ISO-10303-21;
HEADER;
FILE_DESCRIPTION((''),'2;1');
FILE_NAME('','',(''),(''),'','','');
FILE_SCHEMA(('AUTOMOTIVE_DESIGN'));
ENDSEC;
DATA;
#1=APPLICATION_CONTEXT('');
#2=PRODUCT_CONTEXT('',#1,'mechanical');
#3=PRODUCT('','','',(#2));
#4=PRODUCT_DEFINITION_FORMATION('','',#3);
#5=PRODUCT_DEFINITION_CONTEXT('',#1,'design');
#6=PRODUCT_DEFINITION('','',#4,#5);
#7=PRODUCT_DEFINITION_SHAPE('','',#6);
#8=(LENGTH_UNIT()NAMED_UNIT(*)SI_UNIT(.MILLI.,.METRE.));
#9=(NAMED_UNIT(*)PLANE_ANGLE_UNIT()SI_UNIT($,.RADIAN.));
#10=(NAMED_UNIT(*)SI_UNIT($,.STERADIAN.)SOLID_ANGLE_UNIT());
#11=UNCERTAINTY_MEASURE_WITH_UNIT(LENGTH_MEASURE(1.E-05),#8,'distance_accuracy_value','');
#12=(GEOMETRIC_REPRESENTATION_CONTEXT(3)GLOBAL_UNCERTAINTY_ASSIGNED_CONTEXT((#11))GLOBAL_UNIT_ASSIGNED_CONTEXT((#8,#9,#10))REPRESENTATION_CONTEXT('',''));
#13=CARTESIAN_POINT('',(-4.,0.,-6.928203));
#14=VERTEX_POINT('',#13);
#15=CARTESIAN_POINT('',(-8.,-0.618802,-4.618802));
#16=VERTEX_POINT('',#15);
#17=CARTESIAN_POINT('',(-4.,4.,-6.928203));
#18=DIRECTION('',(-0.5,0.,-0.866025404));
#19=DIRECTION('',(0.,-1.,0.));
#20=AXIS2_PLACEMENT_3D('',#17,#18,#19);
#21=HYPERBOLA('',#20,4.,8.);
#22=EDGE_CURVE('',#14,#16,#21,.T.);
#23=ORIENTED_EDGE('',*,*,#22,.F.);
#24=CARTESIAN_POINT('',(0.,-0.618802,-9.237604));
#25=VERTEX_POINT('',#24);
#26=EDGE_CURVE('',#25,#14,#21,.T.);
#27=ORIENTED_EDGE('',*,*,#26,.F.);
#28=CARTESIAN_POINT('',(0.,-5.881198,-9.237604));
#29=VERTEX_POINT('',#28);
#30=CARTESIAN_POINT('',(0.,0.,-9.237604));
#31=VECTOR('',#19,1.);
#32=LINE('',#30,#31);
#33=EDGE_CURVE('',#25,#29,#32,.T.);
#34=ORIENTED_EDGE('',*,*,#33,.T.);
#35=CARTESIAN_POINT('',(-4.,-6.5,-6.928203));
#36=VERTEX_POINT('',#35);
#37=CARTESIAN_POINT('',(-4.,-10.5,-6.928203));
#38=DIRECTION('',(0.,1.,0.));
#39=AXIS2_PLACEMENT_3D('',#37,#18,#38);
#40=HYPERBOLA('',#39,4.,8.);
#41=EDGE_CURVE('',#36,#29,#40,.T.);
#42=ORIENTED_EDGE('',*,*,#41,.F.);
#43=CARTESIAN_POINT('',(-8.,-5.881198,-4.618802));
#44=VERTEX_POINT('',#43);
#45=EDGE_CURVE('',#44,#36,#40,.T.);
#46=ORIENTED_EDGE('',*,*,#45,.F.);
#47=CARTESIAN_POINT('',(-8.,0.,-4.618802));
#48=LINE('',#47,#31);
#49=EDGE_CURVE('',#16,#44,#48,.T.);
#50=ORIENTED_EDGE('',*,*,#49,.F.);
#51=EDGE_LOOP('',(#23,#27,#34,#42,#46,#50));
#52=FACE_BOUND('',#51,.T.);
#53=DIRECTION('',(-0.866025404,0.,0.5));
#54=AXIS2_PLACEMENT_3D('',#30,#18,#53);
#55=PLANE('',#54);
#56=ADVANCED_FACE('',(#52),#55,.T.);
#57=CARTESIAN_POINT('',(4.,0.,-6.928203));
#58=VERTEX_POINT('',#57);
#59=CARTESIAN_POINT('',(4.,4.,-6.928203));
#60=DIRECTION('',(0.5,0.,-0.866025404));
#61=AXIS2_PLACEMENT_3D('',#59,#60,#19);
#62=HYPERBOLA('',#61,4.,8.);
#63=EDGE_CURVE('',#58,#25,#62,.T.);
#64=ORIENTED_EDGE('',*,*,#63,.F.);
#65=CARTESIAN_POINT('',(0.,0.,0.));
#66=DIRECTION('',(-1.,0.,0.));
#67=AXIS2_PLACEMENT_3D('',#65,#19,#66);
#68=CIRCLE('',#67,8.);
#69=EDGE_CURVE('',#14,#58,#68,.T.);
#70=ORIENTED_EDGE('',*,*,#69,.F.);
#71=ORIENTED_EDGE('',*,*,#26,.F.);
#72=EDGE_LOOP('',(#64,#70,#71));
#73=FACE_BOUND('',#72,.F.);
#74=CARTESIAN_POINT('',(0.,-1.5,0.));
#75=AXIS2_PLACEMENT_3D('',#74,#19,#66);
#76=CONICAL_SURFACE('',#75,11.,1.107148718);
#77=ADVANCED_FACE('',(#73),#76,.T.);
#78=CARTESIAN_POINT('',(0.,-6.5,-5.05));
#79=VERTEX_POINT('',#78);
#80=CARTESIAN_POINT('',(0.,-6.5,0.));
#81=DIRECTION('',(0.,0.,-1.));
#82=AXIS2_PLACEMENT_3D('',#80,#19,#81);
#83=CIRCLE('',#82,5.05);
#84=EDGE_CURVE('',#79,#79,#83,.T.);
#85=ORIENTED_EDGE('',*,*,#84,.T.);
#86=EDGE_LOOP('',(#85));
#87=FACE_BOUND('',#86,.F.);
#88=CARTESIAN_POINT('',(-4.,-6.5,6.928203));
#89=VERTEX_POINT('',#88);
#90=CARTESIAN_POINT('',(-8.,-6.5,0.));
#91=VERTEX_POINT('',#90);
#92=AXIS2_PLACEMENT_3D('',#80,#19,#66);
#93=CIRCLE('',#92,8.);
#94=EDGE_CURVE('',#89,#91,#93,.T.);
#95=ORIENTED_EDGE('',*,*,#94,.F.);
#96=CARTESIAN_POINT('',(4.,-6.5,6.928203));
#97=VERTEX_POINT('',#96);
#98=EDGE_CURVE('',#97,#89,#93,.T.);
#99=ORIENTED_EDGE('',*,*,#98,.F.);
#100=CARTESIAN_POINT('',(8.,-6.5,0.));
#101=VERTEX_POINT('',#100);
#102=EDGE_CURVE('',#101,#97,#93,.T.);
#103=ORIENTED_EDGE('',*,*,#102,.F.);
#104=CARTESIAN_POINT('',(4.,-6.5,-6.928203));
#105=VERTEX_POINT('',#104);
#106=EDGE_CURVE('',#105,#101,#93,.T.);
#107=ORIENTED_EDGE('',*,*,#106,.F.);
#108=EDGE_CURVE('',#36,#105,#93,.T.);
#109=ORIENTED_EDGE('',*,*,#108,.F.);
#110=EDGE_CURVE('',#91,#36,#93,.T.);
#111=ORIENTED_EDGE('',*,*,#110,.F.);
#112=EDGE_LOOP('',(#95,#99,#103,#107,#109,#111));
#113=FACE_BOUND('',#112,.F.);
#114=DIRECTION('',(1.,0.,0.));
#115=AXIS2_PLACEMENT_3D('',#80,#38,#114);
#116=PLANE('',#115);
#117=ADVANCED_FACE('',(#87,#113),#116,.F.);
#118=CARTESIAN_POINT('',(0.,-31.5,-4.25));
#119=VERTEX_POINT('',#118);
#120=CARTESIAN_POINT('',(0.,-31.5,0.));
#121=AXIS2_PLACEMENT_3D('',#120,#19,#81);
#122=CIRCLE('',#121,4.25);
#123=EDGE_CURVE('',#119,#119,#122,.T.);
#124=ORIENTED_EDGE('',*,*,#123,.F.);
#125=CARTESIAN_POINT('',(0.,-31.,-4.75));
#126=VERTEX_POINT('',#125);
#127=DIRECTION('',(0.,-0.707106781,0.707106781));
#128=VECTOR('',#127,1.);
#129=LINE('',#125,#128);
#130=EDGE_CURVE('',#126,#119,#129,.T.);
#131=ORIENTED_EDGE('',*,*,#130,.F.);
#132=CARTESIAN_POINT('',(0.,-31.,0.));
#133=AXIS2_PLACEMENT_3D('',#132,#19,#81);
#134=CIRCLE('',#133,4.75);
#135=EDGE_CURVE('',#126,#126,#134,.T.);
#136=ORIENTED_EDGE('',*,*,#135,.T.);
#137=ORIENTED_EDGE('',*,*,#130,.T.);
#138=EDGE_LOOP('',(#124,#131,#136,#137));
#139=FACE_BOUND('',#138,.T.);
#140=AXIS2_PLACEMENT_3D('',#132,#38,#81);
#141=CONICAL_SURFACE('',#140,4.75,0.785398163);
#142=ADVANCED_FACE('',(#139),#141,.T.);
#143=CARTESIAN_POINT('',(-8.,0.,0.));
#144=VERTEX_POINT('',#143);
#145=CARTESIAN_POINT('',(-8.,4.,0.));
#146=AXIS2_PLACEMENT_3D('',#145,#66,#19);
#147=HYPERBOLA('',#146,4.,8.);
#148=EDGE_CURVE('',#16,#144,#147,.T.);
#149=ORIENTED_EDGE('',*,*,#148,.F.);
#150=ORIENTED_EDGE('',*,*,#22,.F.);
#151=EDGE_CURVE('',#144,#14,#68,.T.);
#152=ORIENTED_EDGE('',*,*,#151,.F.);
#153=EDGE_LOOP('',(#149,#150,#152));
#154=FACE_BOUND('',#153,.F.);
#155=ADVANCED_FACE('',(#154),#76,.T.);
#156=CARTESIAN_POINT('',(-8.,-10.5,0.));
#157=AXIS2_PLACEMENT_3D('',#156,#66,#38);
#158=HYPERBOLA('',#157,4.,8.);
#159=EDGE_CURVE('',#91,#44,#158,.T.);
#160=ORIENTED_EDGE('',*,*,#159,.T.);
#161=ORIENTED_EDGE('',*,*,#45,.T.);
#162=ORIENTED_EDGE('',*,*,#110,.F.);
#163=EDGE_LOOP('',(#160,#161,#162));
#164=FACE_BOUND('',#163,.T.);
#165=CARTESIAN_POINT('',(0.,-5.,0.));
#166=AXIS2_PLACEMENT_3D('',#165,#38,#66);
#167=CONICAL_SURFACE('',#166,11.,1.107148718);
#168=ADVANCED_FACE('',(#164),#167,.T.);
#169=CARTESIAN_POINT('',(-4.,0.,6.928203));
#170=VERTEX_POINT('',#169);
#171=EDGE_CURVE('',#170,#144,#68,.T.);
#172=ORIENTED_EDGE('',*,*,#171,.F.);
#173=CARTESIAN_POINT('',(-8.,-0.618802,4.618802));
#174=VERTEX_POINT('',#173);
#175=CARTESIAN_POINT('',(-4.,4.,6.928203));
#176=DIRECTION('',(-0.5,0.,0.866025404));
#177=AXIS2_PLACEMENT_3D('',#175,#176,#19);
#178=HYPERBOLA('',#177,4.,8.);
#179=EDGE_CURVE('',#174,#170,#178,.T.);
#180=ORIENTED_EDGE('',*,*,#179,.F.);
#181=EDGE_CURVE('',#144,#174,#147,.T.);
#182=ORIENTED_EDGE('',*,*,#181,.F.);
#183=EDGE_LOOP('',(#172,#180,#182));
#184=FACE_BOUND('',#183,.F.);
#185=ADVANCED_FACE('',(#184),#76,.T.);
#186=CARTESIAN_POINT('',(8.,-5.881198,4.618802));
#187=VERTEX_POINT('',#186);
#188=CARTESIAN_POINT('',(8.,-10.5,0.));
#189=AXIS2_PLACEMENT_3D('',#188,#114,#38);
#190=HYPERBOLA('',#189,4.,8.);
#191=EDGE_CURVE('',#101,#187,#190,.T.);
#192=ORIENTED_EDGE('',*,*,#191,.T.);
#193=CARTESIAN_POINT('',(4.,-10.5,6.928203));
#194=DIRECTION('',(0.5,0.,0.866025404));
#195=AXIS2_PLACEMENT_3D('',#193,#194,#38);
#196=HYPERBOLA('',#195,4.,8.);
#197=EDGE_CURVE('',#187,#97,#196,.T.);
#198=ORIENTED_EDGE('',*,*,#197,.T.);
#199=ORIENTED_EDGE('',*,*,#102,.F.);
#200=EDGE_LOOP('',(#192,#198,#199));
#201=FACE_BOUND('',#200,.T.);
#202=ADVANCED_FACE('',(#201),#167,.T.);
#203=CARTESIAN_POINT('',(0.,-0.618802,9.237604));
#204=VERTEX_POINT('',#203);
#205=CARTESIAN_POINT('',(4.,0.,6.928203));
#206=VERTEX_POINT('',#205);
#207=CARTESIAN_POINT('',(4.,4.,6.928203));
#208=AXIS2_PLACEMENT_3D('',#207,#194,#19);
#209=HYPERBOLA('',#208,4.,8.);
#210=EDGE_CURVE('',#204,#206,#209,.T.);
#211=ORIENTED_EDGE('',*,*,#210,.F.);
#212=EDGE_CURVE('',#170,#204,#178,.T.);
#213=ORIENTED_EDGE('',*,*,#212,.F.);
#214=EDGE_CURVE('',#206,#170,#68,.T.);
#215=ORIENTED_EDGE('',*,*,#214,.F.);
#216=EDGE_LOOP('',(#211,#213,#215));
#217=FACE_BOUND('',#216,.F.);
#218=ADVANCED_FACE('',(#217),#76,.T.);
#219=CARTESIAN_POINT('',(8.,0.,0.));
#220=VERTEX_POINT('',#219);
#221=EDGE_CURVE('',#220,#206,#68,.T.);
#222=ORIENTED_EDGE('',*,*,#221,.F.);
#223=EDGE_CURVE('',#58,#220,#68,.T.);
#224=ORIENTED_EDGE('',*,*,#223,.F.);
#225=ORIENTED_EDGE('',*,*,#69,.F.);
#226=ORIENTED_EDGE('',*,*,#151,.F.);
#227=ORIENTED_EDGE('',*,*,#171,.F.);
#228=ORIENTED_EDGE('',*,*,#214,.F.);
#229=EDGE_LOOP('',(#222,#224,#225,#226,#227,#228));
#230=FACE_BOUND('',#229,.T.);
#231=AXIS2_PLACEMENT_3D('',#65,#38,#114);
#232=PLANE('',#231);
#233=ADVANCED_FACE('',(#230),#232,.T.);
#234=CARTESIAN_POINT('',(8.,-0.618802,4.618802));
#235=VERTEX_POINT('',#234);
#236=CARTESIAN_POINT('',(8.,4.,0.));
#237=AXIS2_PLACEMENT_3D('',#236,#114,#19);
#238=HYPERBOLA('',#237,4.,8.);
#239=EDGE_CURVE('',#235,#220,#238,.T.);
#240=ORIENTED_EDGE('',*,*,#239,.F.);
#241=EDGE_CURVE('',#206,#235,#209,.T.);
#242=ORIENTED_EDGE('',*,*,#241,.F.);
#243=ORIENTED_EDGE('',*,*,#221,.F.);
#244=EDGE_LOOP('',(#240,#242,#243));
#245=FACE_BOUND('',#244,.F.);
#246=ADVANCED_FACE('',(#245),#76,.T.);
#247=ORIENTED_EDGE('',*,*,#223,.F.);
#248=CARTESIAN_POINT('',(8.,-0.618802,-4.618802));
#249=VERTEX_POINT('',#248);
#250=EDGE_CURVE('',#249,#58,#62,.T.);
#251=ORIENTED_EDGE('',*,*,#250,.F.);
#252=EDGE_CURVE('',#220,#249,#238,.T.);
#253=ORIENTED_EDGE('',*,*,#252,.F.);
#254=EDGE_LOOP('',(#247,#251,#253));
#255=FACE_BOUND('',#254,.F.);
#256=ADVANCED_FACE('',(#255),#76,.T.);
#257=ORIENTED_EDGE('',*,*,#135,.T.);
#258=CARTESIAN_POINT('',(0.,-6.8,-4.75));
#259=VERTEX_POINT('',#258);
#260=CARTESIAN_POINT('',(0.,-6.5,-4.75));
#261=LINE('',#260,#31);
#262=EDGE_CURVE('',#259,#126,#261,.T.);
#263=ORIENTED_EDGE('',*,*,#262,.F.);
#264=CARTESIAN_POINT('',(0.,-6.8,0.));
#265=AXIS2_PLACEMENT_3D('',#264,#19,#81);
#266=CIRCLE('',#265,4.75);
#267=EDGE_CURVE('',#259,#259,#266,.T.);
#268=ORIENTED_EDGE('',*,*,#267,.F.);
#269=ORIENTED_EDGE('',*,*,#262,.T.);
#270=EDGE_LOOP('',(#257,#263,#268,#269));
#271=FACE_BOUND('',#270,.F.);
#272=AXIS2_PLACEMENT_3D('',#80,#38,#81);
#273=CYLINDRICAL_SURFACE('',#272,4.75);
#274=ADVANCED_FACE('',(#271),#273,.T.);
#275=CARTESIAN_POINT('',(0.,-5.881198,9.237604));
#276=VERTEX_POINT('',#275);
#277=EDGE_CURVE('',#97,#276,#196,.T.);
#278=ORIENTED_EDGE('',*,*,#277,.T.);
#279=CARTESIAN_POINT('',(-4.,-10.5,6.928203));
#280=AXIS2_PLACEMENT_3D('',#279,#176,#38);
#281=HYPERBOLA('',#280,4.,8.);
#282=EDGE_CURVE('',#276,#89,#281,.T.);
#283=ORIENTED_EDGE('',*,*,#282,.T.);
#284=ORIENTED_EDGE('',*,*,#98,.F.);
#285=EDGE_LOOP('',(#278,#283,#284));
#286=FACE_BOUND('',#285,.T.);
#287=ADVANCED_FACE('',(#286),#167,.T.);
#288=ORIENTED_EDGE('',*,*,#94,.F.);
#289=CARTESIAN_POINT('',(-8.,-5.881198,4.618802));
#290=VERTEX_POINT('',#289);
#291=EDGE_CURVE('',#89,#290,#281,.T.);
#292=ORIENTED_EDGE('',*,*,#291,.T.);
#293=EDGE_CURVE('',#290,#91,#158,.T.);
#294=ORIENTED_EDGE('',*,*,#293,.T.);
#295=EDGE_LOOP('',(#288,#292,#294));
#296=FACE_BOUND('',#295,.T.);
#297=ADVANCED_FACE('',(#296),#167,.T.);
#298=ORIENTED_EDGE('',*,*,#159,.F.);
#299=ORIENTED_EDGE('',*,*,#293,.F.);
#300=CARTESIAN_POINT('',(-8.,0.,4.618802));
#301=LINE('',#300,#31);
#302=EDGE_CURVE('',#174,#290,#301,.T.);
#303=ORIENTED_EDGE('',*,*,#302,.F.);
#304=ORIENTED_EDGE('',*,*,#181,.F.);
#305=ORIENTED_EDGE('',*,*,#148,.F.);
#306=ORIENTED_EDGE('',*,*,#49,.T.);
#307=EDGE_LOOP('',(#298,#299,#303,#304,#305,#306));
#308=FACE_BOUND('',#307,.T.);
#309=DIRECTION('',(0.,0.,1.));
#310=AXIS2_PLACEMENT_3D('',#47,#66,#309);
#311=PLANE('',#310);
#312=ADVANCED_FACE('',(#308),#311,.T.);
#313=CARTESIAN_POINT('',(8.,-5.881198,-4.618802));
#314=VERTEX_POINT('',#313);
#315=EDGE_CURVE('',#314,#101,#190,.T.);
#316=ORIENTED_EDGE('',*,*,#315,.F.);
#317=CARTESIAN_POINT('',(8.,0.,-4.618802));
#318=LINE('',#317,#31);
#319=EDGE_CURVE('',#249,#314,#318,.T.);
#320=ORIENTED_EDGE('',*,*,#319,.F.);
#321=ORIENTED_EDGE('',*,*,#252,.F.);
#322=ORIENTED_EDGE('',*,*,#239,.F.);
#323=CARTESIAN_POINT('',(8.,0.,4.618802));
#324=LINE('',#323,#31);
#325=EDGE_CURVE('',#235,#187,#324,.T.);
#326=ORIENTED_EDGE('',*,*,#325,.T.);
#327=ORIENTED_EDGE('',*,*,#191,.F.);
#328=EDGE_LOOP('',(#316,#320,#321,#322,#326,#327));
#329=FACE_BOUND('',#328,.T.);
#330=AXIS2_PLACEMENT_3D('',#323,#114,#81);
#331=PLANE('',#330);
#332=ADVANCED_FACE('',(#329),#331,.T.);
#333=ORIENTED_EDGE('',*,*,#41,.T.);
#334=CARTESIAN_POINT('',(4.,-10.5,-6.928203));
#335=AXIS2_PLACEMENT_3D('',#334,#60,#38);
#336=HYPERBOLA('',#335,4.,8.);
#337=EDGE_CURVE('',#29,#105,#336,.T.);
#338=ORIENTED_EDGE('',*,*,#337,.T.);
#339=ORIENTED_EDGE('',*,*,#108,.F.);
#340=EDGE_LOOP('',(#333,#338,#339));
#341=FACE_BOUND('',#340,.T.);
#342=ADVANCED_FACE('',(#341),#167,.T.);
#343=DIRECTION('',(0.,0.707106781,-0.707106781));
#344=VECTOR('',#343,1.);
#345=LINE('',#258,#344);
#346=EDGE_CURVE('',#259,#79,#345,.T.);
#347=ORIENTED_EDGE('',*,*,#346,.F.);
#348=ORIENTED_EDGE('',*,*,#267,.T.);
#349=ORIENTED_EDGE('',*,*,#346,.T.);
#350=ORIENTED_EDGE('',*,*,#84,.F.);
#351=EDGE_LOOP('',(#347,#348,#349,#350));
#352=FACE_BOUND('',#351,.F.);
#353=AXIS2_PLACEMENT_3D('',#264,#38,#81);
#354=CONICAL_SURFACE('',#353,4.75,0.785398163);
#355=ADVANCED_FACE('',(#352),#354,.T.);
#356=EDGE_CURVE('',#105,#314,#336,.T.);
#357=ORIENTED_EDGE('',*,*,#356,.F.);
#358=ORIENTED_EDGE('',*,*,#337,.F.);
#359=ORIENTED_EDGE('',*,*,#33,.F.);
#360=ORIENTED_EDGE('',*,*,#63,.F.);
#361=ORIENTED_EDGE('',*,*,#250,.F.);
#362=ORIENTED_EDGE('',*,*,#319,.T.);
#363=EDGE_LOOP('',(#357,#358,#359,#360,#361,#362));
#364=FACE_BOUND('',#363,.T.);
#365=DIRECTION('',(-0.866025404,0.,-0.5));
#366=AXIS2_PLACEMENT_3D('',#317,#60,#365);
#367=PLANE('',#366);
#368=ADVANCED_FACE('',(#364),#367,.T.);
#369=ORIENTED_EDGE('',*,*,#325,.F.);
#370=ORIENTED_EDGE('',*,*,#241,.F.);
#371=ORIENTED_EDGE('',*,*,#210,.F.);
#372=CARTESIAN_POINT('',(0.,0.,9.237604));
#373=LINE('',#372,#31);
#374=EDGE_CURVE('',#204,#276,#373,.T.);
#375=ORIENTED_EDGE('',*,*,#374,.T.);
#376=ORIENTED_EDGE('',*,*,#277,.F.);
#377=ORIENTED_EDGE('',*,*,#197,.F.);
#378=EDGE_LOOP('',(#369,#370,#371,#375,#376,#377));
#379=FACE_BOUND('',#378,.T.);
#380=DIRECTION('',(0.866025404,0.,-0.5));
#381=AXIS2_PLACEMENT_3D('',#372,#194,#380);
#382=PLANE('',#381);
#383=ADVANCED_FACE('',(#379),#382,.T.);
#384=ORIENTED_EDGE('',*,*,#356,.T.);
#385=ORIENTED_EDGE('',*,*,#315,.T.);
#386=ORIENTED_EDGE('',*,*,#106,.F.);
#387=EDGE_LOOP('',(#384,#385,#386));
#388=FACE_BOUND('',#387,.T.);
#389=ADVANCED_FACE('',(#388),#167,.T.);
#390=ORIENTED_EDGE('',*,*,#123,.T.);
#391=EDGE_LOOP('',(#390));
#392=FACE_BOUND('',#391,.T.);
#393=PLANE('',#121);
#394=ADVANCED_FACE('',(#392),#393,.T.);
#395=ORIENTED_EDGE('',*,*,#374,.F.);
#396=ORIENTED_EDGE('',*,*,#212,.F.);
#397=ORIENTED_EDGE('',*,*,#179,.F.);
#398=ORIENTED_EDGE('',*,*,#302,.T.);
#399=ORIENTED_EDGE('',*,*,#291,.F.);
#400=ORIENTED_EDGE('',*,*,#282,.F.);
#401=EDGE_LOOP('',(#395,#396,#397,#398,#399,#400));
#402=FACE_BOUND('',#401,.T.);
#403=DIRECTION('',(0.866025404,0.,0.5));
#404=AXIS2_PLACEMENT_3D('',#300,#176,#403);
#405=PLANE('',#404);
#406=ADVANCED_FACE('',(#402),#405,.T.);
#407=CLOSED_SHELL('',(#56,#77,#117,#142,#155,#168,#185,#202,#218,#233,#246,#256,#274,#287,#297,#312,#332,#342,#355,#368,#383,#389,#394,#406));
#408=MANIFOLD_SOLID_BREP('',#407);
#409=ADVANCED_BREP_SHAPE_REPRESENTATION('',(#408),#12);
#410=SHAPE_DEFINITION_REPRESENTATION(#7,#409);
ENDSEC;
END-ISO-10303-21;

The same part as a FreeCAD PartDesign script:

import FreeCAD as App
import Part
import Sketcher
Q = App.Units.Quantity


def edges_at(feature, points):
    """Names of the edges that pass closest to the given points."""
    edges = feature.Shape.Edges
    near = lambda p: min(range(len(edges)), key=lambda i: edges[i].distToShape(Part.Vertex(*p))[0])
    return sorted({f"Edge{near(p) + 1}" for p in points})

doc = App.newDocument("Part")
params = doc.addObject("Spreadsheet::Sheet", "Params")
for row, (alias, value) in enumerate([
    ("pad1_length", "6.5 mm"),
    ("sketch2_width", "3 mm"),
    ("sketch2_height", "1 mm"),
    ("sketch2_height2", "2.5 mm"),
    ("groove_angle", "360 deg"),
    ("sketch3_diameter", "9.5 mm"),
    ("pad2_length", "25 mm"),
    ("chamfer_size", "0.5 mm"),
    ("chamfer2_size", "0.3 mm"),
], start=1):
    params.set(f"A{row}", alias)
    params.set(f"B{row}", "=" + value)
    params.setAlias(f"B{row}", alias)

body = doc.addObject("PartDesign::Body", "Body")

# Sketch on XZ plane
sketch1 = body.newObject("Sketcher::SketchObject", "Sketch")
sketch1.AttachmentSupport = (doc.getObject("XZ_Plane"), [""])
sketch1.MapMode = "FlatFace"
sketch1.addGeometry([
    Part.LineSegment(App.Vector(0, -9.237604, 0), App.Vector(-8, -4.618802, 0)),  # 0
    Part.LineSegment(App.Vector(-8, -4.618802, 0), App.Vector(-8, 4.618802, 0)),  # 1
    Part.LineSegment(App.Vector(-8, 4.618802, 0), App.Vector(0, 9.237604, 0)),  # 2
    Part.LineSegment(App.Vector(0, 9.237604, 0), App.Vector(8, 4.618802, 0)),  # 3
    Part.LineSegment(App.Vector(8, 4.618802, 0), App.Vector(8, -4.618802, 0)),  # 4
    Part.LineSegment(App.Vector(8, -4.618802, 0), App.Vector(0, -9.237604, 0)),  # 5
], False)
sketch1.addConstraint([
    Sketcher.Constraint("Coincident", 0, 2, 1, 1),
    Sketcher.Constraint("Coincident", 1, 2, 2, 1),
    Sketcher.Constraint("Coincident", 2, 2, 3, 1),
    Sketcher.Constraint("Coincident", 3, 2, 4, 1),
    Sketcher.Constraint("Coincident", 4, 2, 5, 1),
    Sketcher.Constraint("Coincident", 5, 2, 0, 1),
    Sketcher.Constraint("Vertical", 1),
    Sketcher.Constraint("Vertical", 4),
    Sketcher.Constraint("Symmetric", 0, 2, 3, 2, -1, 1),
    Sketcher.Constraint("Symmetric", 2, 2, 5, 2, -1, 1),
    Sketcher.Constraint("PointOnObject", 2, 2, -2),
    Sketcher.Constraint("Parallel", 2, 5),
    Sketcher.Constraint("Horizontal", 1, 2, 3, 2),
    Sketcher.Constraint("Angle", 0, Q("150 deg")),
    Sketcher.Constraint("DistanceX", 0, 2, -1, 1, 8.0),
    Sketcher.Constraint("DistanceY", 1, 1, 1, 2, 9.237604),
])
pad1 = body.newObject("PartDesign::Pad", "Pad")
pad1.Profile = sketch1
pad1.setExpression("Length", "Params.pad1_length")

# Sketch on XY plane
sketch2 = body.newObject("Sketcher::SketchObject", "Sketch001")
sketch2.AttachmentSupport = (doc.getObject("XY_Plane"), [""])
sketch2.MapMode = "FlatFace"
sketch2.addGeometry([
    Part.LineSegment(App.Vector(-11, -1.5, 0), App.Vector(-8, 0, 0)),
    Part.LineSegment(App.Vector(-8, 0, 0), App.Vector(-8, 1, 0)),
    Part.LineSegment(App.Vector(-8, 1, 0), App.Vector(-11, 1, 0)),
    Part.LineSegment(App.Vector(-11, 1, 0), App.Vector(-11, -1.5, 0)),
], False)
sketch2.addConstraint([
    Sketcher.Constraint("Coincident", 0, 2, 1, 1),
    Sketcher.Constraint("Coincident", 1, 2, 2, 1),
    Sketcher.Constraint("Coincident", 2, 2, 3, 1),
    Sketcher.Constraint("Coincident", 3, 2, 0, 1),
    Sketcher.Constraint("Vertical", 1),
    Sketcher.Constraint("Horizontal", 2),
    Sketcher.Constraint("Vertical", 3),
    Sketcher.Constraint("PointOnObject", 0, 2, -1),
    Sketcher.Constraint("DistanceX", 2, 2, 2, 1, 3.0),
    Sketcher.Constraint("DistanceY", 1, 1, 1, 2, 1.0),
    Sketcher.Constraint("DistanceY", 3, 2, 3, 1, 2.5),
    Sketcher.Constraint("DistanceX", 0, 2, -1, 1, 8.0),
])
sketch2.setExpression("Constraints[8]", "Params.sketch2_width")
sketch2.setExpression("Constraints[9]", "Params.sketch2_height")
sketch2.setExpression("Constraints[10]", "Params.sketch2_height2")
groove = body.newObject("PartDesign::Groove", "Groove")
groove.Profile = sketch2
groove.ReferenceAxis = (sketch2, ["V_Axis"])
groove.setExpression("Angle", "Params.groove_angle")

# Sketch on XZ plane
sketch3 = body.newObject("Sketcher::SketchObject", "Sketch002")
sketch3.AttachmentSupport = (doc.getObject("XZ_Plane"), [""])
sketch3.MapMode = "FlatFace"
sketch3.AttachmentOffset = App.Placement(App.Vector(0, 0, 6.5), App.Rotation())
sketch3.addGeometry(Part.Circle(App.Vector(0, 0, 0), App.Vector(0, 0, 1), 4.75), False)
sketch3.addConstraint([
    Sketcher.Constraint("Coincident", 0, 3, -1, 1),
    Sketcher.Constraint("Diameter", 0, 9.5),
])
sketch3.setExpression("Constraints[1]", "Params.sketch3_diameter")
pad2 = body.newObject("PartDesign::Pad", "Pad001")
pad2.Profile = sketch3
pad2.setExpression("Length", "Params.pad2_length")
doc.recompute()

chamfer = body.newObject("PartDesign::Chamfer", "Chamfer")
chamfer.Base = (pad2, edges_at(pad2, [(0, -31.5, 4.75)]))
chamfer.setExpression("Size", "Params.chamfer_size")
doc.recompute()

datumplane = body.newObject("PartDesign::Plane", "DatumPlane")
datumplane.AttachmentSupport = (doc.getObject("XZ_Plane"), [""])
datumplane.MapMode = "FlatFace"
datumplane.AttachmentOffset = App.Placement(App.Vector(0, 0, 3.25), App.Rotation())
mirrored = body.newObject("PartDesign::Mirrored", "Mirrored")
mirrored.Originals = [groove]
mirrored.MirrorPlane = (datumplane, [""])
body.Tip = mirrored
doc.recompute()

chamfer2 = body.newObject("PartDesign::Chamfer", "Chamfer001")
chamfer2.Base = (mirrored, edges_at(mirrored, [(0, -6.5, 4.75)]))
chamfer2.setExpression("Size", "Params.chamfer2_size")

doc.recompute()
